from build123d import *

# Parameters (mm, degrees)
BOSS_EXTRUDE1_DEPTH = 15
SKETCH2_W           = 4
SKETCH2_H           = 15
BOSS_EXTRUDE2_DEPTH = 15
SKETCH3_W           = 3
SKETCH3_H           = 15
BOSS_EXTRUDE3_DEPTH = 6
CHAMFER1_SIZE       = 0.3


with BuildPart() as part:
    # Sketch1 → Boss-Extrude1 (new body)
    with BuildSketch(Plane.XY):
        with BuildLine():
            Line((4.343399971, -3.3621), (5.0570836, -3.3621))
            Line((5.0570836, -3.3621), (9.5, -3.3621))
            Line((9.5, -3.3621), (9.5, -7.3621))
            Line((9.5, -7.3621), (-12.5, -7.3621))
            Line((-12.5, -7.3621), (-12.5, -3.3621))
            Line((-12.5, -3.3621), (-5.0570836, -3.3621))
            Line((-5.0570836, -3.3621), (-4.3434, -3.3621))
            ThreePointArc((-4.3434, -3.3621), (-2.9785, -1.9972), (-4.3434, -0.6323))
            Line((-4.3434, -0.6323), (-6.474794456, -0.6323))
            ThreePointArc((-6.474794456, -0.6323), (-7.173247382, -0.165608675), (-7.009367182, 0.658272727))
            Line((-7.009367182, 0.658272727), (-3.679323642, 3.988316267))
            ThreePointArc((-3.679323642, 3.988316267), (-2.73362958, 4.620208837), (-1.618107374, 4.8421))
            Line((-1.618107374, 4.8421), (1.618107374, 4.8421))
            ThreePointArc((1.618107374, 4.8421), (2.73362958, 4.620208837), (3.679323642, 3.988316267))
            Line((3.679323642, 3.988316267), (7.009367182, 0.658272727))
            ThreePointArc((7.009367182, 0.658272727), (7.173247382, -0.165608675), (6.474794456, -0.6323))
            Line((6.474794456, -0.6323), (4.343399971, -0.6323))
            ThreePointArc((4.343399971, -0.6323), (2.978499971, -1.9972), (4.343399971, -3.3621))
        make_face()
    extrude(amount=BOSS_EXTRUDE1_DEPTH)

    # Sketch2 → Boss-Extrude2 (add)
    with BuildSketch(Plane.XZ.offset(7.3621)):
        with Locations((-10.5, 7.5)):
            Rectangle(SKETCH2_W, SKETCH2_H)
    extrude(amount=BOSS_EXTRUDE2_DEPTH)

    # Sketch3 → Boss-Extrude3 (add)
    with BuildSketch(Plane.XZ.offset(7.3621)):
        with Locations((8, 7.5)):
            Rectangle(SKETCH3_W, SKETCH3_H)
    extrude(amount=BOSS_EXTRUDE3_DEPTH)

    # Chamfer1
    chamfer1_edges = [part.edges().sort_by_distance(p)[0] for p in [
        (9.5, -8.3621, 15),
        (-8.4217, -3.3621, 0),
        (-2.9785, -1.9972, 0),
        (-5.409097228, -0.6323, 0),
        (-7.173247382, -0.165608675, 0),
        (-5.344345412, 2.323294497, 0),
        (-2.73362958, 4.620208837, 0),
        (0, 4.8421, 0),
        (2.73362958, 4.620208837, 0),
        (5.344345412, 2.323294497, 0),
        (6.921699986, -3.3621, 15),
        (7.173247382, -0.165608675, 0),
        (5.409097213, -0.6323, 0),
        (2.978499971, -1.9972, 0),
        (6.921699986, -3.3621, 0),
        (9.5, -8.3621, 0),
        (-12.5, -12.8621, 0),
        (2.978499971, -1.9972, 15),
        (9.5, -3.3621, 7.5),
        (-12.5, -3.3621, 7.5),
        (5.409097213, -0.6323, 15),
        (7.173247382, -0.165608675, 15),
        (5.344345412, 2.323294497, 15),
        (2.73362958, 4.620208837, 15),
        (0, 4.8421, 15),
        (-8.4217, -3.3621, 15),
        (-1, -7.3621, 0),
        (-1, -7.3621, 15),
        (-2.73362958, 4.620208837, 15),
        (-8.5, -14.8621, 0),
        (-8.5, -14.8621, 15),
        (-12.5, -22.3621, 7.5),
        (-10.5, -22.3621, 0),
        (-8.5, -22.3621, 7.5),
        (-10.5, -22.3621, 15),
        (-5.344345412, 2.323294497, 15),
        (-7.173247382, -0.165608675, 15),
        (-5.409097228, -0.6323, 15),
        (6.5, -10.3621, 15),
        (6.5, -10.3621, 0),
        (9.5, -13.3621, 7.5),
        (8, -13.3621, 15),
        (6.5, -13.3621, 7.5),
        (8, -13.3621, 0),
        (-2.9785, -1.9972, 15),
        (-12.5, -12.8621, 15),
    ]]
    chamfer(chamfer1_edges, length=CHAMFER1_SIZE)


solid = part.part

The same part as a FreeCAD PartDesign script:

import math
import FreeCAD as App
import Part
import Sketcher
from FreeCAD import Vector


def edges_at(feature, points):
    """Names of the edges that pass closest to the given points."""
    edges = feature.Shape.Edges
    near = lambda p: min(range(len(edges)), key=lambda i: edges[i].distToShape(Part.Vertex(*p))[0])
    return sorted({f"Edge{near(p) + 1}" for p in points})

doc = App.newDocument("Part")
params = doc.addObject("Spreadsheet::Sheet", "Params")
for row, (alias, value) in enumerate([
    ("sketch1_width", "22 mm"),
    ("sketch1_height", "4 mm"),
    ("pad1_length", "15 mm"),
    ("sketch2_width", "4 mm"),
    ("sketch2_height", "15 mm"),
    ("pad2_length", "15 mm"),
    ("sketch3_width", "3 mm"),
    ("sketch3_height", "15 mm"),
    ("pad3_length", "6 mm"),
    ("chamfer_size", "0.3 mm"),
], start=1):
    params.set(f"A{row}", alias)
    params.set(f"B{row}", "=" + value)
    params.setAlias(f"B{row}", alias)

body = doc.addObject("PartDesign::Body", "Body")

# Sketch on XY plane
sketch1 = body.newObject("Sketcher::SketchObject", "Sketch")
sketch1.AttachmentSupport = (doc.getObject("XY_Plane"), [""])
sketch1.MapMode = "FlatFace"
sketch1.addGeometry([
    Part.LineSegment(Vector(9.5, -3.4, 0), Vector(4.3, -3.4, 0)),  # 0
    Part.ArcOfCircle(Part.Circle(Vector(4.3, -2, 0), Vector(0, 0, 1), 1.4), math.radians(90), math.radians(270)),  # 1
    Part.LineSegment(Vector(4.3, -0.6, 0), Vector(6.5, -0.6, 0)),  # 2
    Part.ArcOfCircle(Part.Circle(Vector(6.5, 0.1, 0), Vector(0, 0, 1), 0.8), math.radians(-90), math.radians(45)),  # 3
    Part.LineSegment(Vector(7, 0.7, 0), Vector(3.7, 4, 0)),  # 4
    Part.ArcOfCircle(Part.Circle(Vector(1.6, 1.9, 0), Vector(0, 0, 1), 2.9), math.radians(45), math.radians(90)),  # 5
    Part.LineSegment(Vector(1.6, 4.8, 0), Vector(-1.6, 4.8, 0)),  # 6
    Part.ArcOfCircle(Part.Circle(Vector(-1.6, 1.9, 0), Vector(0, 0, 1), 2.9), math.radians(90), math.radians(135)),  # 7
    Part.LineSegment(Vector(-3.7, 4, 0), Vector(-7, 0.7, 0)),  # 8
    Part.ArcOfCircle(Part.Circle(Vector(-6.5, 0.1, 0), Vector(0, 0, 1), 0.8), math.radians(135), math.radians(270)),  # 9
    Part.LineSegment(Vector(-6.5, -0.6, 0), Vector(-4.3, -0.6, 0)),  # 10
    Part.ArcOfCircle(Part.Circle(Vector(-4.3, -2, 0), Vector(0, 0, 1), 1.4), math.radians(-90), math.radians(90)),  # 11
    Part.LineSegment(Vector(-4.3, -3.4, 0), Vector(-12.5, -3.4, 0)),  # 12
    Part.LineSegment(Vector(-12.5, -3.4, 0), Vector(-12.5, -7.4, 0)),  # 13
    Part.LineSegment(Vector(-12.5, -7.4, 0), Vector(9.5, -7.4, 0)),  # 14
    Part.LineSegment(Vector(9.5, -7.4, 0), Vector(9.5, -3.4, 0)),  # 15
], False)
sketch1.addConstraint([
    Sketcher.Constraint("Tangent", 0, 2, 1, 2),
    Sketcher.Constraint("Tangent", 1, 1, 2, 1),
    Sketcher.Constraint("Tangent", 2, 2, 3, 1),
    Sketcher.Constraint("Tangent", 3, 2, 4, 1),
    Sketcher.Constraint("Tangent", 4, 2, 5, 1),
    Sketcher.Constraint("Tangent", 5, 2, 6, 1),
    Sketcher.Constraint("Tangent", 6, 2, 7, 1),
    Sketcher.Constraint("Tangent", 7, 2, 8, 1),
    Sketcher.Constraint("Tangent", 8, 2, 9, 1),
    Sketcher.Constraint("Tangent", 9, 2, 10, 1),
    Sketcher.Constraint("Tangent", 10, 2, 11, 2),
    Sketcher.Constraint("Tangent", 11, 1, 12, 1),
    Sketcher.Constraint("Coincident", 12, 2, 13, 1),
    Sketcher.Constraint("Coincident", 13, 2, 14, 1),
    Sketcher.Constraint("Coincident", 14, 2, 15, 1),
    Sketcher.Constraint("Coincident", 15, 2, 0, 1),
    Sketcher.Constraint("Horizontal", 0),
    Sketcher.Constraint("Horizontal", 2),
    Sketcher.Constraint("Horizontal", 6),
    Sketcher.Constraint("Horizontal", 10),
    Sketcher.Constraint("Horizontal", 12),
    Sketcher.Constraint("Vertical", 13),
    Sketcher.Constraint("Horizontal", 14),
    Sketcher.Constraint("Vertical", 15),
    Sketcher.Constraint("Equal", 5, 7),
    Sketcher.Constraint("Equal", 3, 9),
    Sketcher.Constraint("Equal", 1, 11),
    Sketcher.Constraint("Symmetric", 3, 3, 9, 3, -2),
    Sketcher.Constraint("Perpendicular", 4, 8),
    Sketcher.Constraint("Horizontal", 4, 2, 7, 2),
    Sketcher.Constraint("Equal", 2, 10),
    Sketcher.Constraint("DistanceX", 14, 1, 14, 2, 22.0),
    Sketcher.Constraint("DistanceY", 13, 2, 13, 1, 4.0),
    Sketcher.Constraint("Radius", 3, 0.756),
    Sketcher.Constraint("Radius", 5, 2.915),
    Sketcher.Constraint("DistanceX", 12, 2, -1, 1, 12.5),
    Sketcher.Constraint("Radius", 1, 1.3649),
    Sketcher.Constraint("DistanceX", 0, 2, 0, 1, 5.1566),
    Sketcher.Constraint("DistanceY", 1, 3, -1, 1, 1.9972),
    Sketcher.Constraint("DistanceY", -1, 1, 5, 3, 1.9271),
    Sketcher.Constraint("DistanceX", 7, 3, 3, 3, 8.092902),
])
sketch1.setExpression("Constraints[31]", "Params.sketch1_width")
sketch1.setExpression("Constraints[32]", "Params.sketch1_height")
pad1 = body.newObject("PartDesign::Pad", "Pad")
pad1.Profile = sketch1
pad1.setExpression("Length", "Params.pad1_length")

# Sketch on XZ plane
sketch2 = body.newObject("Sketcher::SketchObject", "Sketch001")
sketch2.AttachmentSupport = (doc.getObject("XZ_Plane"), [""])
sketch2.MapMode = "FlatFace"
sketch2.AttachmentOffset = App.Placement(Vector(0, 0, 7.3621), App.Rotation())
sketch2.addGeometry([
    Part.LineSegment(Vector(-12.5, 15, 0), Vector(-12.5, 0, 0)),
    Part.LineSegment(Vector(-12.5, 0, 0), Vector(-8.5, 0, 0)),
    Part.LineSegment(Vector(-8.5, 0, 0), Vector(-8.5, 15, 0)),
    Part.LineSegment(Vector(-8.5, 15, 0), Vector(-12.5, 15, 0)),
], False)
sketch2.addConstraint([
    Sketcher.Constraint("Coincident", 0, 2, 1, 1),
    Sketcher.Constraint("Coincident", 1, 2, 2, 1),
    Sketcher.Constraint("Coincident", 2, 2, 3, 1),
    Sketcher.Constraint("Coincident", 3, 2, 0, 1),
    Sketcher.Constraint("Vertical", 0),
    Sketcher.Constraint("Horizontal", 1),
    Sketcher.Constraint("Vertical", 2),
    Sketcher.Constraint("Horizontal", 3),
    Sketcher.Constraint("PointOnObject", 0, 2, -1),
    Sketcher.Constraint("DistanceX", 1, 1, 1, 2, 4.0),
    Sketcher.Constraint("DistanceY", 0, 2, 0, 1, 15.0),
    Sketcher.Constraint("DistanceX", 0, 2, -1, 1, 12.5),
])
sketch2.setExpression("Constraints[9]", "Params.sketch2_width")
sketch2.setExpression("Constraints[10]", "Params.sketch2_height")
pad2 = body.newObject("PartDesign::Pad", "Pad001")
pad2.Profile = sketch2
pad2.setExpression("Length", "Params.pad2_length")

# Sketch on XZ plane
sketch3 = body.newObject("Sketcher::SketchObject", "Sketch002")
sketch3.AttachmentSupport = (doc.getObject("XZ_Plane"), [""])
sketch3.MapMode = "FlatFace"
sketch3.AttachmentOffset = App.Placement(Vector(0, 0, 7.3621), App.Rotation())
sketch3.addGeometry([
    Part.LineSegment(Vector(6.5, 15, 0), Vector(6.5, 0, 0)),
    Part.LineSegment(Vector(6.5, 0, 0), Vector(9.5, 0, 0)),
    Part.LineSegment(Vector(9.5, 0, 0), Vector(9.5, 15, 0)),
    Part.LineSegment(Vector(9.5, 15, 0), Vector(6.5, 15, 0)),
], False)
sketch3.addConstraint([
    Sketcher.Constraint("Coincident", 0, 2, 1, 1),
    Sketcher.Constraint("Coincident", 1, 2, 2, 1),
    Sketcher.Constraint("Coincident", 2, 2, 3, 1),
    Sketcher.Constraint("Coincident", 3, 2, 0, 1),
    Sketcher.Constraint("Vertical", 0),
    Sketcher.Constraint("Horizontal", 1),
    Sketcher.Constraint("Vertical", 2),
    Sketcher.Constraint("Horizontal", 3),
    Sketcher.Constraint("PointOnObject", 0, 2, -1),
    Sketcher.Constraint("DistanceX", 1, 1, 1, 2, 3.0),
    Sketcher.Constraint("DistanceY", 0, 2, 0, 1, 15.0),
    Sketcher.Constraint("DistanceX", -1, 1, 0, 2, 6.5),
])
sketch3.setExpression("Constraints[9]", "Params.sketch3_width")
sketch3.setExpression("Constraints[10]", "Params.sketch3_height")
pad3 = body.newObject("PartDesign::Pad", "Pad002")
pad3.Profile = sketch3
pad3.setExpression("Length", "Params.pad3_length")
doc.recompute()

chamfer = body.newObject("PartDesign::Chamfer", "Chamfer")
chamfer.Base = (pad3, edges_at(pad3, [
    (9.5, -8.362, 15),
    (-8.422, -3.362, 0),
    (-2.978, -1.997, 0),
    (-5.409, -0.632, 0),
    (-7.173, -0.166, 0),
    (-5.344, 2.323, 0),
    (-2.734, 4.62, 0),
    (0, 4.842, 0),
    (2.734, 4.62, 0),
    (5.344, 2.323, 0),
    (6.922, -3.362, 15),
    (7.173, -0.166, 0),
    (5.409, -0.632, 0),
    (2.978, -1.997, 0),
    (6.922, -3.362, 0),
    (9.5, -8.362, 0),
    (-12.5, -12.862, 0),
    (2.978, -1.997, 15),
    (9.5, -3.362, 7.5),
    (-12.5, -3.362, 7.5),
    (5.409, -0.632, 15),
    (7.173, -0.166, 15),
    (5.344, 2.323, 15),
    (2.734, 4.62, 15),
    (0, 4.842, 15),
    (-8.422, -3.362, 15),
    (-1, -7.362, 0),
    (-1, -7.362, 15),
    (-2.734, 4.62, 15),
    (-8.5, -14.862, 0),
    (-8.5, -14.862, 15),
    (-12.5, -22.362, 7.5),
    (-10.5, -22.362, 0),
    (-8.5, -22.362, 7.5),
    (-10.5, -22.362, 15),
    (-5.344, 2.323, 15),
    (-7.173, -0.166, 15),
    (-5.409, -0.632, 15),
    (6.5, -10.362, 15),
    (6.5, -10.362, 0),
    (9.5, -13.362, 7.5),
    (8, -13.362, 15),
    (6.5, -13.362, 7.5),
    (8, -13.362, 0),
    (-2.978, -1.997, 15),
    (-12.5, -12.862, 15),
]))
chamfer.setExpression("Size", "Params.chamfer_size")

doc.recompute()
